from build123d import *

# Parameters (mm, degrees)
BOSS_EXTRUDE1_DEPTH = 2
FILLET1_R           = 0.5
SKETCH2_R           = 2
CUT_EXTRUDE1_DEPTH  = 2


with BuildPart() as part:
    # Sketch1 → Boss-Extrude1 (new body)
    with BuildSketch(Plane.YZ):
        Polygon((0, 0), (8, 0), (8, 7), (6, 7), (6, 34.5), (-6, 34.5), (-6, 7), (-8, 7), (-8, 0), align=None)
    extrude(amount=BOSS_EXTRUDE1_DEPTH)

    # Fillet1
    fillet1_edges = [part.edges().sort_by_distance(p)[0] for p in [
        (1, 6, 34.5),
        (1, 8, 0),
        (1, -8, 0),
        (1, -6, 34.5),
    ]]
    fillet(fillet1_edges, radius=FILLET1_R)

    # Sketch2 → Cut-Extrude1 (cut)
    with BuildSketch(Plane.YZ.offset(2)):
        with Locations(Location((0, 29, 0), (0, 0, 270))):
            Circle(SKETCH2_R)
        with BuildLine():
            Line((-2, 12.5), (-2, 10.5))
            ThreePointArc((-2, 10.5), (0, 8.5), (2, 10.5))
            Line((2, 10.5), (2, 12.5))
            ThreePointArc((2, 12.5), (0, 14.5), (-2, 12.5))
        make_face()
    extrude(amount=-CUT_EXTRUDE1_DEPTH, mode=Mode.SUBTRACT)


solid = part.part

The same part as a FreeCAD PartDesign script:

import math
import FreeCAD as App
import Part
import Sketcher
from FreeCAD import Vector
Q = App.Units.Quantity


def edges_at(feature, points):
    """Names of the edges that pass closest to the given points."""
    edges = feature.Shape.Edges
    near = lambda p: min(range(len(edges)), key=lambda i: edges[i].distToShape(Part.Vertex(*p))[0])
    return sorted({f"Edge{near(p) + 1}" for p in points})

doc = App.newDocument("Part")
params = doc.addObject("Spreadsheet::Sheet", "Params")
for row, (alias, value) in enumerate([
    ("sketch1_width", "2 mm"),
    ("sketch1_width2", "12 mm"),
    ("sketch1_height", "7 mm"),
    ("sketch1_height2", "27.5 mm"),
    ("pad1_length", "2 mm"),
    ("fillet_radius", "0.5 mm"),
    ("sketch2_diameter", "4 mm"),
    ("sketch2_height", "2 mm"),
    ("pocket1_length", "2 mm"),
], start=1):
    params.set(f"A{row}", alias)
    params.set(f"B{row}", "=" + value)
    params.setAlias(f"B{row}", alias)

body = doc.addObject("PartDesign::Body", "Body")

sketch1 = body.newObject("Sketcher::SketchObject", "Sketch")
sketch1.AttachmentSupport = (doc.getObject("YZ_Plane"), [""])
sketch1.MapMode = "FlatFace"
sketch1.addGeometry([
    Part.LineSegment(Vector(8, 0, 0), Vector(8, 7, 0)),
    Part.LineSegment(Vector(8, 7, 0), Vector(6, 7, 0)),
    Part.LineSegment(Vector(6, 7, 0), Vector(6, 34.5, 0)),
    Part.LineSegment(Vector(6, 34.5, 0), Vector(-6, 34.5, 0)),
    Part.LineSegment(Vector(-6, 34.5, 0), Vector(-6, 7, 0)),
    Part.LineSegment(Vector(-6, 7, 0), Vector(-8, 7, 0)),
    Part.LineSegment(Vector(-8, 7, 0), Vector(-8, 0, 0)),
    Part.LineSegment(Vector(-8, 0, 0), Vector(8, 0, 0)),
], False)
sketch1.addConstraint([
    Sketcher.Constraint("Coincident", 0, 2, 1, 1),
    Sketcher.Constraint("Coincident", 1, 2, 2, 1),
    Sketcher.Constraint("Coincident", 2, 2, 3, 1),
    Sketcher.Constraint("Coincident", 3, 2, 4, 1),
    Sketcher.Constraint("Coincident", 4, 2, 5, 1),
    Sketcher.Constraint("Coincident", 5, 2, 6, 1),
    Sketcher.Constraint("Coincident", 6, 2, 7, 1),
    Sketcher.Constraint("Coincident", 7, 2, 0, 1),
    Sketcher.Constraint("Vertical", 0),
    Sketcher.Constraint("Horizontal", 1),
    Sketcher.Constraint("Vertical", 2),
    Sketcher.Constraint("Horizontal", 3),
    Sketcher.Constraint("Vertical", 4),
    Sketcher.Constraint("Horizontal", 5),
    Sketcher.Constraint("Vertical", 6),
    Sketcher.Constraint("Horizontal", 7),
    Sketcher.Constraint("Symmetric", 6, 2, 7, 2, -1, 1),
    Sketcher.Constraint("Symmetric", 1, 2, 4, 2, -2),
    Sketcher.Constraint("DistanceX", 1, 2, 1, 1, Q("2 mm")),
    Sketcher.Constraint("DistanceX", 3, 2, 3, 1, Q("12 mm")),
    Sketcher.Constraint("DistanceY", 0, 1, 0, 2, Q("7 mm")),
    Sketcher.Constraint("DistanceY", 2, 1, 2, 2, Q("27.5 mm")),
])
sketch1.setExpression("Constraints[18]", "Params.sketch1_width")
sketch1.setExpression("Constraints[19]", "Params.sketch1_width2")
sketch1.setExpression("Constraints[20]", "Params.sketch1_height")
sketch1.setExpression("Constraints[21]", "Params.sketch1_height2")
pad1 = body.newObject("PartDesign::Pad", "Pad")
pad1.Profile = sketch1
pad1.setExpression("Length", "Params.pad1_length")
doc.recompute()

fillet = body.newObject("PartDesign::Fillet", "Fillet")
fillet.Base = (pad1, edges_at(pad1, [
    (1, 6, 34.5),
    (1, 8, 0),
    (1, -8, 0),
    (1, -6, 34.5),
]))
fillet.setExpression("Radius", "Params.fillet_radius")

sketch2 = body.newObject("Sketcher::SketchObject", "Sketch001")
sketch2.AttachmentSupport = (doc.getObject("YZ_Plane"), [""])
sketch2.MapMode = "FlatFace"
sketch2.AttachmentOffset = App.Placement(Vector(0, 0, 2), App.Rotation())
sketch2.addGeometry([
    Part.Circle(Vector(0, 29, 0), Vector(0, 0, 1), 2),
    Part.LineSegment(Vector(-2, 12.5, 0), Vector(-2, 10.5, 0)),
    Part.ArcOfCircle(Part.Circle(Vector(0, 10.5, 0), Vector(0, 0, 1), 2), math.radians(180), math.radians(360)),
    Part.LineSegment(Vector(2, 10.5, 0), Vector(2, 12.5, 0)),
    Part.ArcOfCircle(Part.Circle(Vector(0, 12.5, 0), Vector(0, 0, 1), 2), math.radians(0), math.radians(180)),
], False)
sketch2.addConstraint([
    Sketcher.Constraint("Tangent", 1, 2, 2, 1),
    Sketcher.Constraint("Tangent", 2, 2, 3, 1),
    Sketcher.Constraint("Tangent", 3, 2, 4, 1),
    Sketcher.Constraint("Tangent", 4, 2, 1, 1),
    Sketcher.Constraint("Vertical", 1),
    Sketcher.Constraint("Vertical", 3),
    Sketcher.Constraint("Equal", 0, 2),
    Sketcher.Constraint("PointOnObject", 0, 3, -2),
    Sketcher.Constraint("PointOnObject", 2, 3, -2),
    Sketcher.Constraint("Diameter", 0, Q("4 mm")),
    Sketcher.Constraint("DistanceY", 1, 2, 1, 1, Q("2 mm")),
    Sketcher.Constraint("DistanceY", -1, 1, 0, 3, Q("29 mm")),
    Sketcher.Constraint("DistanceY", -1, 1, 2, 3, Q("10.5 mm")),
])
sketch2.setExpression("Constraints[9]", "Params.sketch2_diameter")
sketch2.setExpression("Constraints[10]", "Params.sketch2_height")
pocket1 = body.newObject("PartDesign::Pocket", "Pocket")
pocket1.Profile = sketch2
pocket1.setExpression("Length", "Params.pocket1_length")

doc.recompute()
